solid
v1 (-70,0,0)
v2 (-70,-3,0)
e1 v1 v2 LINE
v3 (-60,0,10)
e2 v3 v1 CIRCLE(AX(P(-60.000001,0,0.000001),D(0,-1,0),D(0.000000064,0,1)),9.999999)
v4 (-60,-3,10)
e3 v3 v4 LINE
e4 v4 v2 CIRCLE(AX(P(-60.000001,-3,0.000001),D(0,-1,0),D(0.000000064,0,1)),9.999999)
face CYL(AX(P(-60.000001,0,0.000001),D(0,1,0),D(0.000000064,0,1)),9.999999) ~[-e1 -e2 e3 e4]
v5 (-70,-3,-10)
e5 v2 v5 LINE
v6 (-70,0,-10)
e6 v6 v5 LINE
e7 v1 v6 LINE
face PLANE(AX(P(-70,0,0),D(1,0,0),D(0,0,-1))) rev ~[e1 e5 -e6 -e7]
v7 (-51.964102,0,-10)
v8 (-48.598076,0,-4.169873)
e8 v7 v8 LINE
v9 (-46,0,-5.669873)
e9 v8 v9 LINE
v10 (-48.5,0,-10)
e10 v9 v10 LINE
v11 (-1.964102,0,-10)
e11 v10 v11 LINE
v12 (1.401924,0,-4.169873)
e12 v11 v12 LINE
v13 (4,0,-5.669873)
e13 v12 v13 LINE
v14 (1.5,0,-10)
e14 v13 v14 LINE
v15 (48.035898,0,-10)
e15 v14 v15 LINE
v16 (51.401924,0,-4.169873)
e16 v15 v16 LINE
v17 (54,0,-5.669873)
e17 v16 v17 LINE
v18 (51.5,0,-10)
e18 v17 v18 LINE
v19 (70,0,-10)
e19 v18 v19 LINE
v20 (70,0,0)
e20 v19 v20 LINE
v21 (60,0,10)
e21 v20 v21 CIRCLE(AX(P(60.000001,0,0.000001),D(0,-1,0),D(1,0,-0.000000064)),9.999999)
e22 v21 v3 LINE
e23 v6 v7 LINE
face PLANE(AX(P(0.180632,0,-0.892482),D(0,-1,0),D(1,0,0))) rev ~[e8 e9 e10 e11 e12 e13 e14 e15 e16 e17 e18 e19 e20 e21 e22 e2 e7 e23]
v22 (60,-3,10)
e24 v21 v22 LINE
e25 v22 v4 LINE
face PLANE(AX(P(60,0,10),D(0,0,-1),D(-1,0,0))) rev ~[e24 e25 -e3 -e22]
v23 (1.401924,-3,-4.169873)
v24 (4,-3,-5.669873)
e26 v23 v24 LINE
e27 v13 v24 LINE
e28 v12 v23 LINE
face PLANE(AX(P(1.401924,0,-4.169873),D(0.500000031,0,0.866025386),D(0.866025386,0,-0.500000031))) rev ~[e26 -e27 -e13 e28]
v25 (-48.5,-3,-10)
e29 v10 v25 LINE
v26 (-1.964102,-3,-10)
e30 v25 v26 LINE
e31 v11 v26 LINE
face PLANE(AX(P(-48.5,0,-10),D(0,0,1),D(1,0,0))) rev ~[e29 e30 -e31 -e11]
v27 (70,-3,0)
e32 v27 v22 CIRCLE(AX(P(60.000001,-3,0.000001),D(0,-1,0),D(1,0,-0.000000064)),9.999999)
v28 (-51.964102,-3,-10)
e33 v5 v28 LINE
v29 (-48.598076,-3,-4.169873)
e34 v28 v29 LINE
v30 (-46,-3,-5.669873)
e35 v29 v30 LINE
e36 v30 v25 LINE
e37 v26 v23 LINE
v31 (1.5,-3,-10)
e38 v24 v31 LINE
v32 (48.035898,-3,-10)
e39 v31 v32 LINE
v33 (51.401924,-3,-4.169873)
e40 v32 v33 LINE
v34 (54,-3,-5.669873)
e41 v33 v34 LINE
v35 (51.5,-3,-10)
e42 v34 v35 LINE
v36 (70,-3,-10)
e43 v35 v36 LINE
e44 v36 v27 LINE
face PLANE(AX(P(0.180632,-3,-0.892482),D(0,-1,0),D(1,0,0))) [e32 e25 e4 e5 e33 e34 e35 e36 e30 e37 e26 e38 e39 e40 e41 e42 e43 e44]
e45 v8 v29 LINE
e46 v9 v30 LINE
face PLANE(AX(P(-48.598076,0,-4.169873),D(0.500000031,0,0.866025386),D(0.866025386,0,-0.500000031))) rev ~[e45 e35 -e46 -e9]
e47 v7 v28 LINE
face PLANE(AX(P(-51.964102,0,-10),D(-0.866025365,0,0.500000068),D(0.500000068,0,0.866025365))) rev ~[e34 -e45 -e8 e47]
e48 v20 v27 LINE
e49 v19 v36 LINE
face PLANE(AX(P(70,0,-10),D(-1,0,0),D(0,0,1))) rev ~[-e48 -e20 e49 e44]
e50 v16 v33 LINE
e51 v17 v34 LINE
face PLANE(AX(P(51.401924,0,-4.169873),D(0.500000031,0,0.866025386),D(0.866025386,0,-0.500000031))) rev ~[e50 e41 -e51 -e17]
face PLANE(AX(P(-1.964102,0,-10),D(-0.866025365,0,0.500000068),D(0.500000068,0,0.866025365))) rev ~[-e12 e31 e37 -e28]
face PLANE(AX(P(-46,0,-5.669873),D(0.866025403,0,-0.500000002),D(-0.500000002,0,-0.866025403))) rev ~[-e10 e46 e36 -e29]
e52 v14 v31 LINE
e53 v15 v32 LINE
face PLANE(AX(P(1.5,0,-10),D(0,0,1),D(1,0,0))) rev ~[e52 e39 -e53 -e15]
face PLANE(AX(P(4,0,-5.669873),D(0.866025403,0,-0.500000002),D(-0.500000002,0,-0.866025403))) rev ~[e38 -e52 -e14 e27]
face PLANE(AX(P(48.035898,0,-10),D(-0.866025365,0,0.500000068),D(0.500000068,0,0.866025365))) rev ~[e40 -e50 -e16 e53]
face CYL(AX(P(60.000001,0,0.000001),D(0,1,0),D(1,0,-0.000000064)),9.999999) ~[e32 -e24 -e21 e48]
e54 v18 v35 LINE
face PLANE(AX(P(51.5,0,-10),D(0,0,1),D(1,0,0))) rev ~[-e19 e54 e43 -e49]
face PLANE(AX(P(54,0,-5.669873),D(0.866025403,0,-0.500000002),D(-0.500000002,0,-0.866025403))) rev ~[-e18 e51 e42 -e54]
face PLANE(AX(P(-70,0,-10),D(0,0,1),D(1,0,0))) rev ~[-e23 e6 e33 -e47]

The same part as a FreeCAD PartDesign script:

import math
import FreeCAD as App
import Part
import Sketcher

V = App.Vector
Q = App.Units.Quantity

doc = App.newDocument("Part")
body = doc.addObject("PartDesign::Body", "Body")

# Sketch on XZ plane
sketch1 = body.newObject("Sketcher::SketchObject", "Sketch")
sketch1.AttachmentSupport = (doc.getObject("XZ_Plane"), [""])
sketch1.MapMode = "FlatFace"
sketch1.addGeometry(Part.LineSegment(V(-70, 0, 0), V(-70, -10, 0)), False)
sketch1.addGeometry(Part.LineSegment(V(-70, -10, 0), V(-51.964102, -10, 0)), False)
sketch1.addGeometry(Part.LineSegment(V(-51.964102, -10, 0), V(-48.598076, -4.169873, 0)), False)
sketch1.addGeometry(Part.LineSegment(V(-48.598076, -4.169873, 0), V(-46, -5.669873, 0)), False)
sketch1.addGeometry(Part.LineSegment(V(-46, -5.669873, 0), V(-48.5, -10, 0)), False)
sketch1.addGeometry(Part.LineSegment(V(-48.5, -10, 0), V(-1.964102, -10, 0)), False)
sketch1.addGeometry(Part.LineSegment(V(-1.964102, -10, 0), V(1.401924, -4.169873, 0)), False)
sketch1.addGeometry(Part.LineSegment(V(1.401924, -4.169873, 0), V(4, -5.669873, 0)), False)
sketch1.addGeometry(Part.LineSegment(V(4, -5.669873, 0), V(1.5, -10, 0)), False)
sketch1.addGeometry(Part.LineSegment(V(1.5, -10, 0), V(48.035898, -10, 0)), False)
sketch1.addGeometry(Part.LineSegment(V(48.035898, -10, 0), V(51.401924, -4.169873, 0)), False)
sketch1.addGeometry(Part.LineSegment(V(51.401924, -4.169873, 0), V(54, -5.669873, 0)), False)
sketch1.addGeometry(Part.LineSegment(V(54, -5.669873, 0), V(51.5, -10, 0)), False)
sketch1.addGeometry(Part.LineSegment(V(51.5, -10, 0), V(70, -10, 0)), False)
sketch1.addGeometry(Part.LineSegment(V(70, -10, 0), V(70, 0, 0)), False)
sketch1.addGeometry(Part.ArcOfCircle(Part.Circle(V(60.000001, 0.000001, 0), V(0, 0, 1), 9.999999), math.radians(-0.000004), math.radians(90.000004)), False)
sketch1.addGeometry(Part.LineSegment(V(60, 10, 0), V(-60, 10, 0)), False)
sketch1.addGeometry(Part.ArcOfCircle(Part.Circle(V(-60.000001, 0.000001, 0), V(0, 0, 1), 9.999999), math.radians(89.999996), math.radians(180.000004)), False)
sketch1.addConstraint(Sketcher.Constraint("Coincident", 0, 2, 1, 1))
sketch1.addConstraint(Sketcher.Constraint("Coincident", 1, 2, 2, 1))
sketch1.addConstraint(Sketcher.Constraint("Coincident", 2, 2, 3, 1))
sketch1.addConstraint(Sketcher.Constraint("Coincident", 3, 2, 4, 1))
sketch1.addConstraint(Sketcher.Constraint("Coincident", 4, 2, 5, 1))
sketch1.addConstraint(Sketcher.Constraint("Coincident", 5, 2, 6, 1))
sketch1.addConstraint(Sketcher.Constraint("Coincident", 6, 2, 7, 1))
sketch1.addConstraint(Sketcher.Constraint("Coincident", 7, 2, 8, 1))
sketch1.addConstraint(Sketcher.Constraint("Coincident", 8, 2, 9, 1))
sketch1.addConstraint(Sketcher.Constraint("Coincident", 9, 2, 10, 1))
sketch1.addConstraint(Sketcher.Constraint("Coincident", 10, 2, 11, 1))
sketch1.addConstraint(Sketcher.Constraint("Coincident", 11, 2, 12, 1))
sketch1.addConstraint(Sketcher.Constraint("Coincident", 12, 2, 13, 1))
sketch1.addConstraint(Sketcher.Constraint("Coincident", 13, 2, 14, 1))
sketch1.addConstraint(Sketcher.Constraint("Tangent", 14, 2, 15, 1))
sketch1.addConstraint(Sketcher.Constraint("Tangent", 15, 2, 16, 1))
sketch1.addConstraint(Sketcher.Constraint("Tangent", 16, 2, 17, 1))
sketch1.addConstraint(Sketcher.Constraint("Tangent", 17, 2, 0, 1))
sketch1.addConstraint(Sketcher.Constraint("Vertical", 0))
sketch1.addConstraint(Sketcher.Constraint("Horizontal", 1))
sketch1.addConstraint(Sketcher.Constraint("Horizontal", 5))
sketch1.addConstraint(Sketcher.Constraint("Horizontal", 9))
sketch1.addConstraint(Sketcher.Constraint("Horizontal", 13))
sketch1.addConstraint(Sketcher.Constraint("Vertical", 14))
sketch1.addConstraint(Sketcher.Constraint("Horizontal", 16))
sketch1.addConstraint(Sketcher.Constraint("Equal", 15, 17))
sketch1.addConstraint(Sketcher.Constraint("Symmetric", 15, 3, 17, 3, -1, 1))
sketch1.addConstraint(Sketcher.Constraint("Perpendicular", 2, 3))
sketch1.addConstraint(Sketcher.Constraint("Perpendicular", 3, 4))
sketch1.addConstraint(Sketcher.Constraint("Parallel", 4, 6))
sketch1.addConstraint(Sketcher.Constraint("Perpendicular", 6, 7))
sketch1.addConstraint(Sketcher.Constraint("Perpendicular", 7, 8))
sketch1.addConstraint(Sketcher.Constraint("Parallel", 8, 10))
sketch1.addConstraint(Sketcher.Constraint("Perpendicular", 10, 11))
sketch1.addConstraint(Sketcher.Constraint("Perpendicular", 11, 12))
sketch1.addConstraint(Sketcher.Constraint("Horizontal", 1, 2, 4, 2))
sketch1.addConstraint(Sketcher.Constraint("Horizontal", 2, 2, 6, 2))
sketch1.addConstraint(Sketcher.Constraint("Horizontal", 3, 2, 7, 2))
sketch1.addConstraint(Sketcher.Constraint("Horizontal", 5, 2, 8, 2))
sketch1.addConstraint(Sketcher.Constraint("Horizontal", 6, 2, 10, 2))
sketch1.addConstraint(Sketcher.Constraint("Horizontal", 7, 2, 11, 2))
sketch1.addConstraint(Sketcher.Constraint("Horizontal", 9, 2, 12, 2))
sketch1.addConstraint(Sketcher.Constraint("Equal", 5, 9))
sketch1.addConstraint(Sketcher.Constraint("Radius", 15, 9.999999))
sketch1.addConstraint(Sketcher.Constraint("DistanceX", 16, 2, 16, 1, 120.0))
sketch1.addConstraint(Sketcher.Constraint("DistanceY", 0, 2, 0, 1, 10.0))
sketch1.addConstraint(Sketcher.Constraint("Angle", 2, Q("59.999996 deg")))
sketch1.addConstraint(Sketcher.Constraint("Distance", 3, 3.0))
sketch1.addConstraint(Sketcher.Constraint("Distance", 4, 5.0))
sketch1.addConstraint(Sketcher.Constraint("DistanceX", 13, 1, 13, 2, 18.5))
sketch1.addConstraint(Sketcher.Constraint("DistanceX", 3, 2, -1, 1, 46.0))
pad1 = body.newObject("PartDesign::Pad", "Pad")
pad1.Profile = sketch1
pad1.Length = 3

doc.recompute()
